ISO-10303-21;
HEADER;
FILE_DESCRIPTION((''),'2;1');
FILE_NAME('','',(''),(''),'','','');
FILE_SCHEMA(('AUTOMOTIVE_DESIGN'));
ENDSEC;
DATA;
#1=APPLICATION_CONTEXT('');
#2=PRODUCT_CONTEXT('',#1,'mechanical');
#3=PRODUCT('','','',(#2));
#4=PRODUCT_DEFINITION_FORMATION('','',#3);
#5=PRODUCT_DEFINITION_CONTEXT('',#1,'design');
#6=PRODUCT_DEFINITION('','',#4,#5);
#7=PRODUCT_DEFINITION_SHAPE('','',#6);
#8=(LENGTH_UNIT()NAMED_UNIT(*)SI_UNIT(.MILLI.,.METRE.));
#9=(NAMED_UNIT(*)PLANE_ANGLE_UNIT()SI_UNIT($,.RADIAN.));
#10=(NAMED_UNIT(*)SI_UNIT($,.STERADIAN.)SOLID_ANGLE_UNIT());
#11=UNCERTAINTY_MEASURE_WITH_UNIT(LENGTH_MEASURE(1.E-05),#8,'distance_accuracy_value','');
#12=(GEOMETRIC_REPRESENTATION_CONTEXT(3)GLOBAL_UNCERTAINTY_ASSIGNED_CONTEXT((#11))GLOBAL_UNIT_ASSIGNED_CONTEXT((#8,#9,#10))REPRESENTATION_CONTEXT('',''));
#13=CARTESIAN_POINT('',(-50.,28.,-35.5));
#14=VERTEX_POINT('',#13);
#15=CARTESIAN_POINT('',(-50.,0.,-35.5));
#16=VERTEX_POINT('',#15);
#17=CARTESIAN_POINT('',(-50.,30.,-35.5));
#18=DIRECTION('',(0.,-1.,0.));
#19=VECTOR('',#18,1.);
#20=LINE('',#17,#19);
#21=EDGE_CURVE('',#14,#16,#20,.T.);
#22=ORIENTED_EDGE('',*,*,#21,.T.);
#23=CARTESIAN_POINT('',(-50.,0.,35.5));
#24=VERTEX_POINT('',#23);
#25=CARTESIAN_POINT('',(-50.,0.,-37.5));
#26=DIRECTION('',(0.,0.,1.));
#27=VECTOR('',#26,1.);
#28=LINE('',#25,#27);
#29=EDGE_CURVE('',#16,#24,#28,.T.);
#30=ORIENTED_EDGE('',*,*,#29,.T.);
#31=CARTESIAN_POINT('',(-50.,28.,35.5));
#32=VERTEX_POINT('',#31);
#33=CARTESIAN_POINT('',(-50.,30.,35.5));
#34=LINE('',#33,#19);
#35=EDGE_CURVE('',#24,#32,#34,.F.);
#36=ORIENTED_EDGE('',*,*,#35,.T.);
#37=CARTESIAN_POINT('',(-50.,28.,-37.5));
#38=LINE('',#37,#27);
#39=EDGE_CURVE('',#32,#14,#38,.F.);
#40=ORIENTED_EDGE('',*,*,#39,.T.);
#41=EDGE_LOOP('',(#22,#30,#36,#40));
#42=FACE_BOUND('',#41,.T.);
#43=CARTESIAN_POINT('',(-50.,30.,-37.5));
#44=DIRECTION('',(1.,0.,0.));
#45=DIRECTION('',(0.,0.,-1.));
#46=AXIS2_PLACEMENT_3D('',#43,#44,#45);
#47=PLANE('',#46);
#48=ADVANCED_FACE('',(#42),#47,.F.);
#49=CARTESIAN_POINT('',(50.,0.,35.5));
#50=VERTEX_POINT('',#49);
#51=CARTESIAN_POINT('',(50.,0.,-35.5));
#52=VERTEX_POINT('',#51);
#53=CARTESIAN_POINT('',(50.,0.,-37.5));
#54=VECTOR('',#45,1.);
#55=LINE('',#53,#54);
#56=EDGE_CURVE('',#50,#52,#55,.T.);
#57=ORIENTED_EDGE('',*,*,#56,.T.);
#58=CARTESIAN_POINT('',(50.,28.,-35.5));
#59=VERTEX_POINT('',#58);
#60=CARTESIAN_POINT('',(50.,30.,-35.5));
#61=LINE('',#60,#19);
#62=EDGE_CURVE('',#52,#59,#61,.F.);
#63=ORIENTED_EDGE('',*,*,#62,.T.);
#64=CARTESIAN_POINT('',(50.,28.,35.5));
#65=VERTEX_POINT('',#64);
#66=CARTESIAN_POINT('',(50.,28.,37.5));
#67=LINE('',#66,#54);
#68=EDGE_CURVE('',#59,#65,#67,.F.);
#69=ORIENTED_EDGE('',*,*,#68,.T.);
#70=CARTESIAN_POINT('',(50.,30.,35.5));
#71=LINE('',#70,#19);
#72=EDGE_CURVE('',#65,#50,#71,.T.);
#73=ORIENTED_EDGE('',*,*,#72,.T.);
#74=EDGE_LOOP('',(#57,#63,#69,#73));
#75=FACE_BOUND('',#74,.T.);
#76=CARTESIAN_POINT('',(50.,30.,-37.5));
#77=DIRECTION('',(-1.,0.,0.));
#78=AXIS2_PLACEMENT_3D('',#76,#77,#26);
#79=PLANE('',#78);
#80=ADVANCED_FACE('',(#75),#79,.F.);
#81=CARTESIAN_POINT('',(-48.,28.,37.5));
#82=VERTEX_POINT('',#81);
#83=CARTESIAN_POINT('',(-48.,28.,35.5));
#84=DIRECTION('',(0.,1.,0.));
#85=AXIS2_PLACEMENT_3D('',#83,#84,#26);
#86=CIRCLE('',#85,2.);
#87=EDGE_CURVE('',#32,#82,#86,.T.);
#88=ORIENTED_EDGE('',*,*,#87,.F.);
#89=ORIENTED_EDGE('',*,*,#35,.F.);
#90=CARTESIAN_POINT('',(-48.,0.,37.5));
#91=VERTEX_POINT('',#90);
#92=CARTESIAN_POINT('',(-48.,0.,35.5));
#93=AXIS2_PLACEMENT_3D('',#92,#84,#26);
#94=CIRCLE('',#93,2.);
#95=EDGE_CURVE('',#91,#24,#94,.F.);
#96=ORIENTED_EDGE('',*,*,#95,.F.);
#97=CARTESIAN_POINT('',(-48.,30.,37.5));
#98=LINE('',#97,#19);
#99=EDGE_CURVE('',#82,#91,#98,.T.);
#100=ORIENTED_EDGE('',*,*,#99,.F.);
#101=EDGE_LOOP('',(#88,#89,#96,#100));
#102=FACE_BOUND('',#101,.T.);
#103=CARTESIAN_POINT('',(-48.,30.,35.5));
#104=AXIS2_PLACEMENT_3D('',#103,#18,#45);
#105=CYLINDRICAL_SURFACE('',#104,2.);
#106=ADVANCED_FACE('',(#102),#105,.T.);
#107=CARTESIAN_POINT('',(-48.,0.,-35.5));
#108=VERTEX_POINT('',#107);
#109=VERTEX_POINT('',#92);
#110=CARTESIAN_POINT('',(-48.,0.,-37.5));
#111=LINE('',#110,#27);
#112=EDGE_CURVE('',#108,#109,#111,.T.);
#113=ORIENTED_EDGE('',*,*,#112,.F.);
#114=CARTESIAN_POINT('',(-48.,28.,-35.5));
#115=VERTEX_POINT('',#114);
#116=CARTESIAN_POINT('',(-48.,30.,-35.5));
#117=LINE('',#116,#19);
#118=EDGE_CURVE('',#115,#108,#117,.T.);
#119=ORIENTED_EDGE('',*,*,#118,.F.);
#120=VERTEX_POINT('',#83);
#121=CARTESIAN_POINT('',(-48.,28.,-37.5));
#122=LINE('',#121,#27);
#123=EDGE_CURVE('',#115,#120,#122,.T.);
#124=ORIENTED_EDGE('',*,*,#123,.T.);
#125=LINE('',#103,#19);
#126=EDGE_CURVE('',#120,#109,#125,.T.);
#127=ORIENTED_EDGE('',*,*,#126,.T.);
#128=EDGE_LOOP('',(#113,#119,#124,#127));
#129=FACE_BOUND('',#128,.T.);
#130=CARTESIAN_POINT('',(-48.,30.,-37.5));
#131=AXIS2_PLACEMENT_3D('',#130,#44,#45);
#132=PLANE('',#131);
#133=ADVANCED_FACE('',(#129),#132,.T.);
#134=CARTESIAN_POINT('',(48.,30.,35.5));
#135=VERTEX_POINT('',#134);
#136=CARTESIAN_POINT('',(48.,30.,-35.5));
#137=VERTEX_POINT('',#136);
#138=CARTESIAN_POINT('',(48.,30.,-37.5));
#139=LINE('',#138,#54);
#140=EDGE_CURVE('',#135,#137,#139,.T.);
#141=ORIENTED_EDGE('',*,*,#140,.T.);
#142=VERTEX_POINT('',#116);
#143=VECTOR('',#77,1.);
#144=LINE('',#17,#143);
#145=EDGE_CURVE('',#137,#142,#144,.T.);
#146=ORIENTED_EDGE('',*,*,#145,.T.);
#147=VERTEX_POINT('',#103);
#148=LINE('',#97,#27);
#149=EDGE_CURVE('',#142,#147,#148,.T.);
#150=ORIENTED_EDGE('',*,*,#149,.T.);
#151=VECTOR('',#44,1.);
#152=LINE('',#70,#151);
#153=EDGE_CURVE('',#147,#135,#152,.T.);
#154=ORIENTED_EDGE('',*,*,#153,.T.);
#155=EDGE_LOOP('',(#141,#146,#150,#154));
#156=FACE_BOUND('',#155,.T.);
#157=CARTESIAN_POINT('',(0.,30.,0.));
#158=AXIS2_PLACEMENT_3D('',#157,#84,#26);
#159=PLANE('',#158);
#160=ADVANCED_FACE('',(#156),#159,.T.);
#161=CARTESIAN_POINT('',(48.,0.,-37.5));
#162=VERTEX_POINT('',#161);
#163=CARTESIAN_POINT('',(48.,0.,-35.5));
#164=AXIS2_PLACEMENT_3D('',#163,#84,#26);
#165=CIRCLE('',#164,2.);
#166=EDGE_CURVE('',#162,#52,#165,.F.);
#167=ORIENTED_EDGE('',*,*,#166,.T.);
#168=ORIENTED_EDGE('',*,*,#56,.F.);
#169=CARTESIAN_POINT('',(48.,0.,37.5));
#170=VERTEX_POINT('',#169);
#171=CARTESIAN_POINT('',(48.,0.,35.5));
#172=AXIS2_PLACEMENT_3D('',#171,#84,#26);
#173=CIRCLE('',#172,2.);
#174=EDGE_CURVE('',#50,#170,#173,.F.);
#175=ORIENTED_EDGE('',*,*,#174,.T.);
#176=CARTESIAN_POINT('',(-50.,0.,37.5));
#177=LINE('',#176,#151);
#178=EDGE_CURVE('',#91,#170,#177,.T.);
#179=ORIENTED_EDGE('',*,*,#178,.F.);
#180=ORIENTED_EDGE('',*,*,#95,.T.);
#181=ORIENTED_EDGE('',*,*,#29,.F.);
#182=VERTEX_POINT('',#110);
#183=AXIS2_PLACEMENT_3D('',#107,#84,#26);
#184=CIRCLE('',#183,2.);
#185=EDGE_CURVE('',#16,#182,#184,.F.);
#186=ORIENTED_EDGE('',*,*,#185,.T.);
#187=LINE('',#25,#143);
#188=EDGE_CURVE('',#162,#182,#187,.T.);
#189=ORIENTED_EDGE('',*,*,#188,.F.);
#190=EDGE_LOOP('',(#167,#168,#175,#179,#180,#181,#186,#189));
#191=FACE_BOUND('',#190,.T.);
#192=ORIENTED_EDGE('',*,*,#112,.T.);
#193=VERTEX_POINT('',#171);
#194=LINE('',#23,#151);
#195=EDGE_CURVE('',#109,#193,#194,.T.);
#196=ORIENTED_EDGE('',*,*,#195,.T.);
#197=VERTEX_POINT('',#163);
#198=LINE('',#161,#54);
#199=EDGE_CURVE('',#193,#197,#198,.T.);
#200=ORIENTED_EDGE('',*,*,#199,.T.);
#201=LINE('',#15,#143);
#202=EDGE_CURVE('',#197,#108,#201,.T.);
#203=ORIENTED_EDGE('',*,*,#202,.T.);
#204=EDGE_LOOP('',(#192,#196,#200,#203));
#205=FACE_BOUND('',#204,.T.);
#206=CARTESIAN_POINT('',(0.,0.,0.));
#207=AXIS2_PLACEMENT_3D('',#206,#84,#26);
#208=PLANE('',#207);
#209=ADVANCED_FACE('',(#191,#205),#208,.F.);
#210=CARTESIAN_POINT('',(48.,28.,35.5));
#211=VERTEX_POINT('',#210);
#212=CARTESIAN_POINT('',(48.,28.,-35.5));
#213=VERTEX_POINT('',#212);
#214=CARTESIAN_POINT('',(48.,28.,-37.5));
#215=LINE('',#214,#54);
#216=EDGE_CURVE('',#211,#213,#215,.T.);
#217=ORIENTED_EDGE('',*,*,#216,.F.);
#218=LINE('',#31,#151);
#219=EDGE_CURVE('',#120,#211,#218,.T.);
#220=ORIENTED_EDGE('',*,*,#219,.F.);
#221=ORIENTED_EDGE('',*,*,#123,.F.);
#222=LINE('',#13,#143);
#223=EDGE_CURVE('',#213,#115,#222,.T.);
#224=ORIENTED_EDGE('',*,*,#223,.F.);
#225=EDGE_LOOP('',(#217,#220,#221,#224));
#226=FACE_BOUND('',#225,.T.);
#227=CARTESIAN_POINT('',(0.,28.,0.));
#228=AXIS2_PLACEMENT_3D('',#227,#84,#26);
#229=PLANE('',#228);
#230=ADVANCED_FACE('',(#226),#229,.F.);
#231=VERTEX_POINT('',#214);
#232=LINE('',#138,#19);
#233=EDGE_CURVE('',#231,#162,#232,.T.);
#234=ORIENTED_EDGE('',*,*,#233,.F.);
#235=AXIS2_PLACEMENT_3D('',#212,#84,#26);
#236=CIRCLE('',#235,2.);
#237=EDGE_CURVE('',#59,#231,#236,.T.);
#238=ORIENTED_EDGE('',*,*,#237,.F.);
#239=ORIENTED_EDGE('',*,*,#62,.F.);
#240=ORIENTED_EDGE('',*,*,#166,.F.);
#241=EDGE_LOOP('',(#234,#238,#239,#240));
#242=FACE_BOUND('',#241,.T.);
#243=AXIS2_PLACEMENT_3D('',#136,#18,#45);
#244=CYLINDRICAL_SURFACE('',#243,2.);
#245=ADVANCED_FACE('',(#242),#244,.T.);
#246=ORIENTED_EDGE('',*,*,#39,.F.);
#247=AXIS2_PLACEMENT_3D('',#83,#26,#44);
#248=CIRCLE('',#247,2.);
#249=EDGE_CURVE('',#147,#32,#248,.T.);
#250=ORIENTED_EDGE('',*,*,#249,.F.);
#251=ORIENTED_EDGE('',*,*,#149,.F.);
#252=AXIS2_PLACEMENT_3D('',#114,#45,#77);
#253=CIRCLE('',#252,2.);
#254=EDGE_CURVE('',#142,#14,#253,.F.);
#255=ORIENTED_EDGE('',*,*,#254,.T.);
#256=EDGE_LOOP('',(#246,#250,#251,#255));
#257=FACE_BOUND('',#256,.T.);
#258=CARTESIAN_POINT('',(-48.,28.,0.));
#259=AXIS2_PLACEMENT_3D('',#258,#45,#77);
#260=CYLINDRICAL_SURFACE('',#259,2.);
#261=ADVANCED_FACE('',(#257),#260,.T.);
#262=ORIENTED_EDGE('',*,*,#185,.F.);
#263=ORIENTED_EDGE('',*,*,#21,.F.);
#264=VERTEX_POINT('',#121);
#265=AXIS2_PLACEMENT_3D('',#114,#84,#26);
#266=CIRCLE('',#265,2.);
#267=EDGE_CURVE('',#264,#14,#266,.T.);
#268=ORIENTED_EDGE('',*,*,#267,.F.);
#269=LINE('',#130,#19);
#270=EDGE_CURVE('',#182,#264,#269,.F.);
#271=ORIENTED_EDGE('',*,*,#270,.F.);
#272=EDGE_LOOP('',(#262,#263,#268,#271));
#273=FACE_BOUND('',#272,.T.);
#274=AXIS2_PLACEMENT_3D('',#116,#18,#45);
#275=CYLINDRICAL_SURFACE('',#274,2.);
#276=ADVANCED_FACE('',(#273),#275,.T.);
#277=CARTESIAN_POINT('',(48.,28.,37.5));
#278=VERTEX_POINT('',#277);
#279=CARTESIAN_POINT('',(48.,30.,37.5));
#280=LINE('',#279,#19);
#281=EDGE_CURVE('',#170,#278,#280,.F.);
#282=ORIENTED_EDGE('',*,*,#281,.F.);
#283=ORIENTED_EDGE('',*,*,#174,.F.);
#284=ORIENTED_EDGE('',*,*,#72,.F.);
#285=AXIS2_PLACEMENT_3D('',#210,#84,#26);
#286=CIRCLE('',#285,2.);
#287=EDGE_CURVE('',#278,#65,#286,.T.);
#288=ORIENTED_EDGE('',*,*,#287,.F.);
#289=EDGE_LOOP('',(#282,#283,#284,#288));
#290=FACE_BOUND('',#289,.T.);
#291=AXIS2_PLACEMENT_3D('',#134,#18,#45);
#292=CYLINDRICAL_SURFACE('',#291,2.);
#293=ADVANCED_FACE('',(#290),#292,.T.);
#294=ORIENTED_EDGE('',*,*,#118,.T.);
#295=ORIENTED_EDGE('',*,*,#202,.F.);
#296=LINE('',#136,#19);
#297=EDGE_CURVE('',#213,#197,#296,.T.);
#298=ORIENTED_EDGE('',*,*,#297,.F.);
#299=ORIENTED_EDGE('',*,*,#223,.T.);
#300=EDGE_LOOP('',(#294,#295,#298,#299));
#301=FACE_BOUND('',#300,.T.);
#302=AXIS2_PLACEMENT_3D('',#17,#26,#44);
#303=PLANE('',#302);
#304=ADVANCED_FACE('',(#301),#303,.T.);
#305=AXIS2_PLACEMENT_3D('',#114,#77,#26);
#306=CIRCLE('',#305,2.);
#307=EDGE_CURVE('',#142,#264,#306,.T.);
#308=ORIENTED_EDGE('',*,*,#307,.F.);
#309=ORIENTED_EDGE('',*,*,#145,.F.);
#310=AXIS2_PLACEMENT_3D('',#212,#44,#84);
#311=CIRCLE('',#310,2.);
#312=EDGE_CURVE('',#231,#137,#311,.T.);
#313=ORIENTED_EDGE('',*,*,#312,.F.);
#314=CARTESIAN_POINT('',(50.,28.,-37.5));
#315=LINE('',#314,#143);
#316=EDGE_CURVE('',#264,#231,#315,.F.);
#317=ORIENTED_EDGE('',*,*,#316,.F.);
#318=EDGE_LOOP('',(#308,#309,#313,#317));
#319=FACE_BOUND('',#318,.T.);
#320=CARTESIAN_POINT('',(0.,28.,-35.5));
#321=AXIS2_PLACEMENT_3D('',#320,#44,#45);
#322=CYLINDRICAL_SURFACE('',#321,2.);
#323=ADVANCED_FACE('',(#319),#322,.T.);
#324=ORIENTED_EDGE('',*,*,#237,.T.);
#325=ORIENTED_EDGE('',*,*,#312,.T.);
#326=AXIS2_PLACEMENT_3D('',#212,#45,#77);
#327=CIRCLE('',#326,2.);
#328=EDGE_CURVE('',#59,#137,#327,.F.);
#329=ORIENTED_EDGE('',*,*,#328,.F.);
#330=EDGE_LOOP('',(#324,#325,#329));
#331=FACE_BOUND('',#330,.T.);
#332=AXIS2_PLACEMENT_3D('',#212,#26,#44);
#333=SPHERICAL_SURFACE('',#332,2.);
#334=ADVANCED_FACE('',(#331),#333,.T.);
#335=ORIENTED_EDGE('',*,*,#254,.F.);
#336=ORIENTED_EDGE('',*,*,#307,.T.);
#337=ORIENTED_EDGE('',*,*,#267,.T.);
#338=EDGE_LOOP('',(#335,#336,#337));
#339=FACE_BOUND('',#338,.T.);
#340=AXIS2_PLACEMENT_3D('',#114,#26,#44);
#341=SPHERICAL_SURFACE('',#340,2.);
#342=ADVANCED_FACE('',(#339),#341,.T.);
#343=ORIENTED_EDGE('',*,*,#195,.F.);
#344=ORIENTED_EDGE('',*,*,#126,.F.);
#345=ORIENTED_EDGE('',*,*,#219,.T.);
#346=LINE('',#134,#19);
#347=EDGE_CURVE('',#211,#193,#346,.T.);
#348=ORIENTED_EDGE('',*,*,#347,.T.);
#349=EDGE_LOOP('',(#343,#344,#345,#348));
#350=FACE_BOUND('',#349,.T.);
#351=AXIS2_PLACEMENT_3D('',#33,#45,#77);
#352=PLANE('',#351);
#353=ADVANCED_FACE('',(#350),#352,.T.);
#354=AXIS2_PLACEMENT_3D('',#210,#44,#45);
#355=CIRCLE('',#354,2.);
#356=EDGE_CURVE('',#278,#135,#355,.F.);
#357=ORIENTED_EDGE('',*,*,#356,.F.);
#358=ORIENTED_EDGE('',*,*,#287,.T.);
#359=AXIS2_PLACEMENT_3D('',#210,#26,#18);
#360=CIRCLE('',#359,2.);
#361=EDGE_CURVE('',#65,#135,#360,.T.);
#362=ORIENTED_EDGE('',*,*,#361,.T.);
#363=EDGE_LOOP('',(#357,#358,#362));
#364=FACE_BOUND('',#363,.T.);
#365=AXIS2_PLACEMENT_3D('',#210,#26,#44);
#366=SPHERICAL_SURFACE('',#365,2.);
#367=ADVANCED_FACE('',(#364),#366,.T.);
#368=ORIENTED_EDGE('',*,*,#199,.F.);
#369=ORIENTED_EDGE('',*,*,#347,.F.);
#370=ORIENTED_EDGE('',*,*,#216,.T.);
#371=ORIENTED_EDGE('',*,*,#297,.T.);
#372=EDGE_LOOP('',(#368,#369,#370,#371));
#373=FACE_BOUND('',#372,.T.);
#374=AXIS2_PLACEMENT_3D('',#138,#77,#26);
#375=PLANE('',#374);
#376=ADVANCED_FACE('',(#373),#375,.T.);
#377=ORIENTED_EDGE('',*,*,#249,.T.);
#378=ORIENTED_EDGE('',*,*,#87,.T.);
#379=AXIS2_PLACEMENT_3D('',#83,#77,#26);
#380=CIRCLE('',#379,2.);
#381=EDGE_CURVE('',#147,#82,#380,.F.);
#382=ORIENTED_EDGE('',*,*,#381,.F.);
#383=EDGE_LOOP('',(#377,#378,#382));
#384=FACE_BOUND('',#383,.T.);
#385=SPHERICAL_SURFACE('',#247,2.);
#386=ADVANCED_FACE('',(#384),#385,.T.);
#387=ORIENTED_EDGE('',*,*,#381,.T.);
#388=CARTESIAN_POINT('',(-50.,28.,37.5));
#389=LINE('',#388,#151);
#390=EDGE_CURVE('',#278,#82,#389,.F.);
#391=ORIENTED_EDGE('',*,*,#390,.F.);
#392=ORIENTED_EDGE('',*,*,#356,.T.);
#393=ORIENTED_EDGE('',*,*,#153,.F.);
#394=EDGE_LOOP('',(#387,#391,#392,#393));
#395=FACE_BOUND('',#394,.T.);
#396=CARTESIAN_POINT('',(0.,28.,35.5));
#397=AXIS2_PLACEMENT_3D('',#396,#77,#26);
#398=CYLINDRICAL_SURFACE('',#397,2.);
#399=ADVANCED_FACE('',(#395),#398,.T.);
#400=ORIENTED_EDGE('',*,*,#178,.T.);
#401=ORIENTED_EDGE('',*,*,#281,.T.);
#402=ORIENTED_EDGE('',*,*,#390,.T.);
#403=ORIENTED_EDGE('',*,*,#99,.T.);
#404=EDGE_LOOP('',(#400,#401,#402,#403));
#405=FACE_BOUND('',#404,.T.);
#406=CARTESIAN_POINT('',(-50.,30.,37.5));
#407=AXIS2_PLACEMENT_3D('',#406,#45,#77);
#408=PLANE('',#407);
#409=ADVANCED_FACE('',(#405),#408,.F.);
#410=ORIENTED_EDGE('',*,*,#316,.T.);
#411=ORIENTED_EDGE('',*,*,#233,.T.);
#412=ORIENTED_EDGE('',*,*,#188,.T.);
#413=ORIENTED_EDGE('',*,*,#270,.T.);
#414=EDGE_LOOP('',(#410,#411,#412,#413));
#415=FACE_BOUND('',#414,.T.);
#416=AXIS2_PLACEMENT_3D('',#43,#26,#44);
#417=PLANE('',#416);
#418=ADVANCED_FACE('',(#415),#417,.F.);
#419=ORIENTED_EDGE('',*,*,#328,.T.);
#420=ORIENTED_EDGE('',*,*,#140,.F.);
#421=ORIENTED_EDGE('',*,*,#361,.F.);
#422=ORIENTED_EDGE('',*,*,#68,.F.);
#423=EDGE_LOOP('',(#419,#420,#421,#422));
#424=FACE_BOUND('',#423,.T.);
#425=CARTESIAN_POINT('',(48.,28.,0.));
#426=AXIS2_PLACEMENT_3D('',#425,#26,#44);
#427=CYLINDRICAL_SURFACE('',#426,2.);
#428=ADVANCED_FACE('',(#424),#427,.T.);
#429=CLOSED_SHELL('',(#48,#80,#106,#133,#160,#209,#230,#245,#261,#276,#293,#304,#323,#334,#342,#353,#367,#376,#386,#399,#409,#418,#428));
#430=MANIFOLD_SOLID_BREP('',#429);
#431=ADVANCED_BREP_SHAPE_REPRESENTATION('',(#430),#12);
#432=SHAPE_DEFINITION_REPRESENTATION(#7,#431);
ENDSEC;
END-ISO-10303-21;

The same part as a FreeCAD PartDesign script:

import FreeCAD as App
import Part
import Sketcher
from FreeCAD import Vector
Q = App.Units.Quantity


def edges_at(feature, points):
    """Names of the edges that pass closest to the given points."""
    edges = feature.Shape.Edges
    near = lambda p: min(range(len(edges)), key=lambda i: edges[i].distToShape(Part.Vertex(*p))[0])
    return sorted({f"Edge{near(p) + 1}" for p in points})


def faces_at(feature, points):
    """Names of the faces that lie closest to the given points."""
    faces = feature.Shape.Faces
    near = lambda p: min(range(len(faces)), key=lambda i: faces[i].distToShape(Part.Vertex(*p))[0])
    return sorted({f"Face{near(p) + 1}" for p in points})


def add_polygon(sketch, points):
    """Adds a closed chain of lines whose ends are joined by coincident constraints."""
    first, n = sketch.GeometryCount, len(points)
    for a, b in zip(points, points[1:] + points[:1]):
        sketch.addGeometry(Part.LineSegment(App.Vector(*a, 0), App.Vector(*b, 0)), False)
    for i in range(n):
        sketch.addConstraint(Sketcher.Constraint("Coincident", first + i, 2, first + (i + 1) % n, 1))

doc = App.newDocument("Part")
body = doc.addObject("PartDesign::Body", "Body")

# Sketch on XZ plane
sketch1 = body.newObject("Sketcher::SketchObject", "Sketch")
sketch1.AttachmentSupport = (doc.getObject("XZ_Plane"), [""])
sketch1.MapMode = "FlatFace"
add_polygon(sketch1, [(-50, -38), (-50, 38), (50, 38), (50, -38)])  # lines 0-3
sketch1.addConstraint([
    Sketcher.Constraint("Vertical", 0),
    Sketcher.Constraint("Horizontal", 1),
    Sketcher.Constraint("Vertical", 2),
    Sketcher.Constraint("Horizontal", 3),
    Sketcher.Constraint("Symmetric", 0, 2, 2, 2, -1, 1),
    Sketcher.Constraint("DistanceX", 1, 1, 1, 2, Q("100 mm")),
    Sketcher.Constraint("DistanceY", 0, 1, 0, 2, Q("75 mm")),
])
pad1 = body.newObject("PartDesign::Pad", "Pad")
pad1.Profile = sketch1
pad1.Length = 30
pad1.Reversed = True
doc.recompute()

thickness = body.newObject("PartDesign::Thickness", "Thickness")
thickness.Base = (pad1, faces_at(pad1, [(0, 0, 0)]))
thickness.Value = 2
thickness.Reversed = True
thickness.Join = "Intersection"
doc.recompute()

fillet = body.newObject("PartDesign::Fillet", "Fillet")
fillet.Base = (thickness, edges_at(thickness, [
    (-50, 30, 0),
    (0, 30, 37.5),
    (50, 30, 0),
    (0, 30, -37.5),
    (50, 15, 37.5),
    (-50, 15, 37.5),
    (-50, 15, -37.5),
    (50, 15, -37.5),
]))
fillet.Radius = 2

doc.recompute()
